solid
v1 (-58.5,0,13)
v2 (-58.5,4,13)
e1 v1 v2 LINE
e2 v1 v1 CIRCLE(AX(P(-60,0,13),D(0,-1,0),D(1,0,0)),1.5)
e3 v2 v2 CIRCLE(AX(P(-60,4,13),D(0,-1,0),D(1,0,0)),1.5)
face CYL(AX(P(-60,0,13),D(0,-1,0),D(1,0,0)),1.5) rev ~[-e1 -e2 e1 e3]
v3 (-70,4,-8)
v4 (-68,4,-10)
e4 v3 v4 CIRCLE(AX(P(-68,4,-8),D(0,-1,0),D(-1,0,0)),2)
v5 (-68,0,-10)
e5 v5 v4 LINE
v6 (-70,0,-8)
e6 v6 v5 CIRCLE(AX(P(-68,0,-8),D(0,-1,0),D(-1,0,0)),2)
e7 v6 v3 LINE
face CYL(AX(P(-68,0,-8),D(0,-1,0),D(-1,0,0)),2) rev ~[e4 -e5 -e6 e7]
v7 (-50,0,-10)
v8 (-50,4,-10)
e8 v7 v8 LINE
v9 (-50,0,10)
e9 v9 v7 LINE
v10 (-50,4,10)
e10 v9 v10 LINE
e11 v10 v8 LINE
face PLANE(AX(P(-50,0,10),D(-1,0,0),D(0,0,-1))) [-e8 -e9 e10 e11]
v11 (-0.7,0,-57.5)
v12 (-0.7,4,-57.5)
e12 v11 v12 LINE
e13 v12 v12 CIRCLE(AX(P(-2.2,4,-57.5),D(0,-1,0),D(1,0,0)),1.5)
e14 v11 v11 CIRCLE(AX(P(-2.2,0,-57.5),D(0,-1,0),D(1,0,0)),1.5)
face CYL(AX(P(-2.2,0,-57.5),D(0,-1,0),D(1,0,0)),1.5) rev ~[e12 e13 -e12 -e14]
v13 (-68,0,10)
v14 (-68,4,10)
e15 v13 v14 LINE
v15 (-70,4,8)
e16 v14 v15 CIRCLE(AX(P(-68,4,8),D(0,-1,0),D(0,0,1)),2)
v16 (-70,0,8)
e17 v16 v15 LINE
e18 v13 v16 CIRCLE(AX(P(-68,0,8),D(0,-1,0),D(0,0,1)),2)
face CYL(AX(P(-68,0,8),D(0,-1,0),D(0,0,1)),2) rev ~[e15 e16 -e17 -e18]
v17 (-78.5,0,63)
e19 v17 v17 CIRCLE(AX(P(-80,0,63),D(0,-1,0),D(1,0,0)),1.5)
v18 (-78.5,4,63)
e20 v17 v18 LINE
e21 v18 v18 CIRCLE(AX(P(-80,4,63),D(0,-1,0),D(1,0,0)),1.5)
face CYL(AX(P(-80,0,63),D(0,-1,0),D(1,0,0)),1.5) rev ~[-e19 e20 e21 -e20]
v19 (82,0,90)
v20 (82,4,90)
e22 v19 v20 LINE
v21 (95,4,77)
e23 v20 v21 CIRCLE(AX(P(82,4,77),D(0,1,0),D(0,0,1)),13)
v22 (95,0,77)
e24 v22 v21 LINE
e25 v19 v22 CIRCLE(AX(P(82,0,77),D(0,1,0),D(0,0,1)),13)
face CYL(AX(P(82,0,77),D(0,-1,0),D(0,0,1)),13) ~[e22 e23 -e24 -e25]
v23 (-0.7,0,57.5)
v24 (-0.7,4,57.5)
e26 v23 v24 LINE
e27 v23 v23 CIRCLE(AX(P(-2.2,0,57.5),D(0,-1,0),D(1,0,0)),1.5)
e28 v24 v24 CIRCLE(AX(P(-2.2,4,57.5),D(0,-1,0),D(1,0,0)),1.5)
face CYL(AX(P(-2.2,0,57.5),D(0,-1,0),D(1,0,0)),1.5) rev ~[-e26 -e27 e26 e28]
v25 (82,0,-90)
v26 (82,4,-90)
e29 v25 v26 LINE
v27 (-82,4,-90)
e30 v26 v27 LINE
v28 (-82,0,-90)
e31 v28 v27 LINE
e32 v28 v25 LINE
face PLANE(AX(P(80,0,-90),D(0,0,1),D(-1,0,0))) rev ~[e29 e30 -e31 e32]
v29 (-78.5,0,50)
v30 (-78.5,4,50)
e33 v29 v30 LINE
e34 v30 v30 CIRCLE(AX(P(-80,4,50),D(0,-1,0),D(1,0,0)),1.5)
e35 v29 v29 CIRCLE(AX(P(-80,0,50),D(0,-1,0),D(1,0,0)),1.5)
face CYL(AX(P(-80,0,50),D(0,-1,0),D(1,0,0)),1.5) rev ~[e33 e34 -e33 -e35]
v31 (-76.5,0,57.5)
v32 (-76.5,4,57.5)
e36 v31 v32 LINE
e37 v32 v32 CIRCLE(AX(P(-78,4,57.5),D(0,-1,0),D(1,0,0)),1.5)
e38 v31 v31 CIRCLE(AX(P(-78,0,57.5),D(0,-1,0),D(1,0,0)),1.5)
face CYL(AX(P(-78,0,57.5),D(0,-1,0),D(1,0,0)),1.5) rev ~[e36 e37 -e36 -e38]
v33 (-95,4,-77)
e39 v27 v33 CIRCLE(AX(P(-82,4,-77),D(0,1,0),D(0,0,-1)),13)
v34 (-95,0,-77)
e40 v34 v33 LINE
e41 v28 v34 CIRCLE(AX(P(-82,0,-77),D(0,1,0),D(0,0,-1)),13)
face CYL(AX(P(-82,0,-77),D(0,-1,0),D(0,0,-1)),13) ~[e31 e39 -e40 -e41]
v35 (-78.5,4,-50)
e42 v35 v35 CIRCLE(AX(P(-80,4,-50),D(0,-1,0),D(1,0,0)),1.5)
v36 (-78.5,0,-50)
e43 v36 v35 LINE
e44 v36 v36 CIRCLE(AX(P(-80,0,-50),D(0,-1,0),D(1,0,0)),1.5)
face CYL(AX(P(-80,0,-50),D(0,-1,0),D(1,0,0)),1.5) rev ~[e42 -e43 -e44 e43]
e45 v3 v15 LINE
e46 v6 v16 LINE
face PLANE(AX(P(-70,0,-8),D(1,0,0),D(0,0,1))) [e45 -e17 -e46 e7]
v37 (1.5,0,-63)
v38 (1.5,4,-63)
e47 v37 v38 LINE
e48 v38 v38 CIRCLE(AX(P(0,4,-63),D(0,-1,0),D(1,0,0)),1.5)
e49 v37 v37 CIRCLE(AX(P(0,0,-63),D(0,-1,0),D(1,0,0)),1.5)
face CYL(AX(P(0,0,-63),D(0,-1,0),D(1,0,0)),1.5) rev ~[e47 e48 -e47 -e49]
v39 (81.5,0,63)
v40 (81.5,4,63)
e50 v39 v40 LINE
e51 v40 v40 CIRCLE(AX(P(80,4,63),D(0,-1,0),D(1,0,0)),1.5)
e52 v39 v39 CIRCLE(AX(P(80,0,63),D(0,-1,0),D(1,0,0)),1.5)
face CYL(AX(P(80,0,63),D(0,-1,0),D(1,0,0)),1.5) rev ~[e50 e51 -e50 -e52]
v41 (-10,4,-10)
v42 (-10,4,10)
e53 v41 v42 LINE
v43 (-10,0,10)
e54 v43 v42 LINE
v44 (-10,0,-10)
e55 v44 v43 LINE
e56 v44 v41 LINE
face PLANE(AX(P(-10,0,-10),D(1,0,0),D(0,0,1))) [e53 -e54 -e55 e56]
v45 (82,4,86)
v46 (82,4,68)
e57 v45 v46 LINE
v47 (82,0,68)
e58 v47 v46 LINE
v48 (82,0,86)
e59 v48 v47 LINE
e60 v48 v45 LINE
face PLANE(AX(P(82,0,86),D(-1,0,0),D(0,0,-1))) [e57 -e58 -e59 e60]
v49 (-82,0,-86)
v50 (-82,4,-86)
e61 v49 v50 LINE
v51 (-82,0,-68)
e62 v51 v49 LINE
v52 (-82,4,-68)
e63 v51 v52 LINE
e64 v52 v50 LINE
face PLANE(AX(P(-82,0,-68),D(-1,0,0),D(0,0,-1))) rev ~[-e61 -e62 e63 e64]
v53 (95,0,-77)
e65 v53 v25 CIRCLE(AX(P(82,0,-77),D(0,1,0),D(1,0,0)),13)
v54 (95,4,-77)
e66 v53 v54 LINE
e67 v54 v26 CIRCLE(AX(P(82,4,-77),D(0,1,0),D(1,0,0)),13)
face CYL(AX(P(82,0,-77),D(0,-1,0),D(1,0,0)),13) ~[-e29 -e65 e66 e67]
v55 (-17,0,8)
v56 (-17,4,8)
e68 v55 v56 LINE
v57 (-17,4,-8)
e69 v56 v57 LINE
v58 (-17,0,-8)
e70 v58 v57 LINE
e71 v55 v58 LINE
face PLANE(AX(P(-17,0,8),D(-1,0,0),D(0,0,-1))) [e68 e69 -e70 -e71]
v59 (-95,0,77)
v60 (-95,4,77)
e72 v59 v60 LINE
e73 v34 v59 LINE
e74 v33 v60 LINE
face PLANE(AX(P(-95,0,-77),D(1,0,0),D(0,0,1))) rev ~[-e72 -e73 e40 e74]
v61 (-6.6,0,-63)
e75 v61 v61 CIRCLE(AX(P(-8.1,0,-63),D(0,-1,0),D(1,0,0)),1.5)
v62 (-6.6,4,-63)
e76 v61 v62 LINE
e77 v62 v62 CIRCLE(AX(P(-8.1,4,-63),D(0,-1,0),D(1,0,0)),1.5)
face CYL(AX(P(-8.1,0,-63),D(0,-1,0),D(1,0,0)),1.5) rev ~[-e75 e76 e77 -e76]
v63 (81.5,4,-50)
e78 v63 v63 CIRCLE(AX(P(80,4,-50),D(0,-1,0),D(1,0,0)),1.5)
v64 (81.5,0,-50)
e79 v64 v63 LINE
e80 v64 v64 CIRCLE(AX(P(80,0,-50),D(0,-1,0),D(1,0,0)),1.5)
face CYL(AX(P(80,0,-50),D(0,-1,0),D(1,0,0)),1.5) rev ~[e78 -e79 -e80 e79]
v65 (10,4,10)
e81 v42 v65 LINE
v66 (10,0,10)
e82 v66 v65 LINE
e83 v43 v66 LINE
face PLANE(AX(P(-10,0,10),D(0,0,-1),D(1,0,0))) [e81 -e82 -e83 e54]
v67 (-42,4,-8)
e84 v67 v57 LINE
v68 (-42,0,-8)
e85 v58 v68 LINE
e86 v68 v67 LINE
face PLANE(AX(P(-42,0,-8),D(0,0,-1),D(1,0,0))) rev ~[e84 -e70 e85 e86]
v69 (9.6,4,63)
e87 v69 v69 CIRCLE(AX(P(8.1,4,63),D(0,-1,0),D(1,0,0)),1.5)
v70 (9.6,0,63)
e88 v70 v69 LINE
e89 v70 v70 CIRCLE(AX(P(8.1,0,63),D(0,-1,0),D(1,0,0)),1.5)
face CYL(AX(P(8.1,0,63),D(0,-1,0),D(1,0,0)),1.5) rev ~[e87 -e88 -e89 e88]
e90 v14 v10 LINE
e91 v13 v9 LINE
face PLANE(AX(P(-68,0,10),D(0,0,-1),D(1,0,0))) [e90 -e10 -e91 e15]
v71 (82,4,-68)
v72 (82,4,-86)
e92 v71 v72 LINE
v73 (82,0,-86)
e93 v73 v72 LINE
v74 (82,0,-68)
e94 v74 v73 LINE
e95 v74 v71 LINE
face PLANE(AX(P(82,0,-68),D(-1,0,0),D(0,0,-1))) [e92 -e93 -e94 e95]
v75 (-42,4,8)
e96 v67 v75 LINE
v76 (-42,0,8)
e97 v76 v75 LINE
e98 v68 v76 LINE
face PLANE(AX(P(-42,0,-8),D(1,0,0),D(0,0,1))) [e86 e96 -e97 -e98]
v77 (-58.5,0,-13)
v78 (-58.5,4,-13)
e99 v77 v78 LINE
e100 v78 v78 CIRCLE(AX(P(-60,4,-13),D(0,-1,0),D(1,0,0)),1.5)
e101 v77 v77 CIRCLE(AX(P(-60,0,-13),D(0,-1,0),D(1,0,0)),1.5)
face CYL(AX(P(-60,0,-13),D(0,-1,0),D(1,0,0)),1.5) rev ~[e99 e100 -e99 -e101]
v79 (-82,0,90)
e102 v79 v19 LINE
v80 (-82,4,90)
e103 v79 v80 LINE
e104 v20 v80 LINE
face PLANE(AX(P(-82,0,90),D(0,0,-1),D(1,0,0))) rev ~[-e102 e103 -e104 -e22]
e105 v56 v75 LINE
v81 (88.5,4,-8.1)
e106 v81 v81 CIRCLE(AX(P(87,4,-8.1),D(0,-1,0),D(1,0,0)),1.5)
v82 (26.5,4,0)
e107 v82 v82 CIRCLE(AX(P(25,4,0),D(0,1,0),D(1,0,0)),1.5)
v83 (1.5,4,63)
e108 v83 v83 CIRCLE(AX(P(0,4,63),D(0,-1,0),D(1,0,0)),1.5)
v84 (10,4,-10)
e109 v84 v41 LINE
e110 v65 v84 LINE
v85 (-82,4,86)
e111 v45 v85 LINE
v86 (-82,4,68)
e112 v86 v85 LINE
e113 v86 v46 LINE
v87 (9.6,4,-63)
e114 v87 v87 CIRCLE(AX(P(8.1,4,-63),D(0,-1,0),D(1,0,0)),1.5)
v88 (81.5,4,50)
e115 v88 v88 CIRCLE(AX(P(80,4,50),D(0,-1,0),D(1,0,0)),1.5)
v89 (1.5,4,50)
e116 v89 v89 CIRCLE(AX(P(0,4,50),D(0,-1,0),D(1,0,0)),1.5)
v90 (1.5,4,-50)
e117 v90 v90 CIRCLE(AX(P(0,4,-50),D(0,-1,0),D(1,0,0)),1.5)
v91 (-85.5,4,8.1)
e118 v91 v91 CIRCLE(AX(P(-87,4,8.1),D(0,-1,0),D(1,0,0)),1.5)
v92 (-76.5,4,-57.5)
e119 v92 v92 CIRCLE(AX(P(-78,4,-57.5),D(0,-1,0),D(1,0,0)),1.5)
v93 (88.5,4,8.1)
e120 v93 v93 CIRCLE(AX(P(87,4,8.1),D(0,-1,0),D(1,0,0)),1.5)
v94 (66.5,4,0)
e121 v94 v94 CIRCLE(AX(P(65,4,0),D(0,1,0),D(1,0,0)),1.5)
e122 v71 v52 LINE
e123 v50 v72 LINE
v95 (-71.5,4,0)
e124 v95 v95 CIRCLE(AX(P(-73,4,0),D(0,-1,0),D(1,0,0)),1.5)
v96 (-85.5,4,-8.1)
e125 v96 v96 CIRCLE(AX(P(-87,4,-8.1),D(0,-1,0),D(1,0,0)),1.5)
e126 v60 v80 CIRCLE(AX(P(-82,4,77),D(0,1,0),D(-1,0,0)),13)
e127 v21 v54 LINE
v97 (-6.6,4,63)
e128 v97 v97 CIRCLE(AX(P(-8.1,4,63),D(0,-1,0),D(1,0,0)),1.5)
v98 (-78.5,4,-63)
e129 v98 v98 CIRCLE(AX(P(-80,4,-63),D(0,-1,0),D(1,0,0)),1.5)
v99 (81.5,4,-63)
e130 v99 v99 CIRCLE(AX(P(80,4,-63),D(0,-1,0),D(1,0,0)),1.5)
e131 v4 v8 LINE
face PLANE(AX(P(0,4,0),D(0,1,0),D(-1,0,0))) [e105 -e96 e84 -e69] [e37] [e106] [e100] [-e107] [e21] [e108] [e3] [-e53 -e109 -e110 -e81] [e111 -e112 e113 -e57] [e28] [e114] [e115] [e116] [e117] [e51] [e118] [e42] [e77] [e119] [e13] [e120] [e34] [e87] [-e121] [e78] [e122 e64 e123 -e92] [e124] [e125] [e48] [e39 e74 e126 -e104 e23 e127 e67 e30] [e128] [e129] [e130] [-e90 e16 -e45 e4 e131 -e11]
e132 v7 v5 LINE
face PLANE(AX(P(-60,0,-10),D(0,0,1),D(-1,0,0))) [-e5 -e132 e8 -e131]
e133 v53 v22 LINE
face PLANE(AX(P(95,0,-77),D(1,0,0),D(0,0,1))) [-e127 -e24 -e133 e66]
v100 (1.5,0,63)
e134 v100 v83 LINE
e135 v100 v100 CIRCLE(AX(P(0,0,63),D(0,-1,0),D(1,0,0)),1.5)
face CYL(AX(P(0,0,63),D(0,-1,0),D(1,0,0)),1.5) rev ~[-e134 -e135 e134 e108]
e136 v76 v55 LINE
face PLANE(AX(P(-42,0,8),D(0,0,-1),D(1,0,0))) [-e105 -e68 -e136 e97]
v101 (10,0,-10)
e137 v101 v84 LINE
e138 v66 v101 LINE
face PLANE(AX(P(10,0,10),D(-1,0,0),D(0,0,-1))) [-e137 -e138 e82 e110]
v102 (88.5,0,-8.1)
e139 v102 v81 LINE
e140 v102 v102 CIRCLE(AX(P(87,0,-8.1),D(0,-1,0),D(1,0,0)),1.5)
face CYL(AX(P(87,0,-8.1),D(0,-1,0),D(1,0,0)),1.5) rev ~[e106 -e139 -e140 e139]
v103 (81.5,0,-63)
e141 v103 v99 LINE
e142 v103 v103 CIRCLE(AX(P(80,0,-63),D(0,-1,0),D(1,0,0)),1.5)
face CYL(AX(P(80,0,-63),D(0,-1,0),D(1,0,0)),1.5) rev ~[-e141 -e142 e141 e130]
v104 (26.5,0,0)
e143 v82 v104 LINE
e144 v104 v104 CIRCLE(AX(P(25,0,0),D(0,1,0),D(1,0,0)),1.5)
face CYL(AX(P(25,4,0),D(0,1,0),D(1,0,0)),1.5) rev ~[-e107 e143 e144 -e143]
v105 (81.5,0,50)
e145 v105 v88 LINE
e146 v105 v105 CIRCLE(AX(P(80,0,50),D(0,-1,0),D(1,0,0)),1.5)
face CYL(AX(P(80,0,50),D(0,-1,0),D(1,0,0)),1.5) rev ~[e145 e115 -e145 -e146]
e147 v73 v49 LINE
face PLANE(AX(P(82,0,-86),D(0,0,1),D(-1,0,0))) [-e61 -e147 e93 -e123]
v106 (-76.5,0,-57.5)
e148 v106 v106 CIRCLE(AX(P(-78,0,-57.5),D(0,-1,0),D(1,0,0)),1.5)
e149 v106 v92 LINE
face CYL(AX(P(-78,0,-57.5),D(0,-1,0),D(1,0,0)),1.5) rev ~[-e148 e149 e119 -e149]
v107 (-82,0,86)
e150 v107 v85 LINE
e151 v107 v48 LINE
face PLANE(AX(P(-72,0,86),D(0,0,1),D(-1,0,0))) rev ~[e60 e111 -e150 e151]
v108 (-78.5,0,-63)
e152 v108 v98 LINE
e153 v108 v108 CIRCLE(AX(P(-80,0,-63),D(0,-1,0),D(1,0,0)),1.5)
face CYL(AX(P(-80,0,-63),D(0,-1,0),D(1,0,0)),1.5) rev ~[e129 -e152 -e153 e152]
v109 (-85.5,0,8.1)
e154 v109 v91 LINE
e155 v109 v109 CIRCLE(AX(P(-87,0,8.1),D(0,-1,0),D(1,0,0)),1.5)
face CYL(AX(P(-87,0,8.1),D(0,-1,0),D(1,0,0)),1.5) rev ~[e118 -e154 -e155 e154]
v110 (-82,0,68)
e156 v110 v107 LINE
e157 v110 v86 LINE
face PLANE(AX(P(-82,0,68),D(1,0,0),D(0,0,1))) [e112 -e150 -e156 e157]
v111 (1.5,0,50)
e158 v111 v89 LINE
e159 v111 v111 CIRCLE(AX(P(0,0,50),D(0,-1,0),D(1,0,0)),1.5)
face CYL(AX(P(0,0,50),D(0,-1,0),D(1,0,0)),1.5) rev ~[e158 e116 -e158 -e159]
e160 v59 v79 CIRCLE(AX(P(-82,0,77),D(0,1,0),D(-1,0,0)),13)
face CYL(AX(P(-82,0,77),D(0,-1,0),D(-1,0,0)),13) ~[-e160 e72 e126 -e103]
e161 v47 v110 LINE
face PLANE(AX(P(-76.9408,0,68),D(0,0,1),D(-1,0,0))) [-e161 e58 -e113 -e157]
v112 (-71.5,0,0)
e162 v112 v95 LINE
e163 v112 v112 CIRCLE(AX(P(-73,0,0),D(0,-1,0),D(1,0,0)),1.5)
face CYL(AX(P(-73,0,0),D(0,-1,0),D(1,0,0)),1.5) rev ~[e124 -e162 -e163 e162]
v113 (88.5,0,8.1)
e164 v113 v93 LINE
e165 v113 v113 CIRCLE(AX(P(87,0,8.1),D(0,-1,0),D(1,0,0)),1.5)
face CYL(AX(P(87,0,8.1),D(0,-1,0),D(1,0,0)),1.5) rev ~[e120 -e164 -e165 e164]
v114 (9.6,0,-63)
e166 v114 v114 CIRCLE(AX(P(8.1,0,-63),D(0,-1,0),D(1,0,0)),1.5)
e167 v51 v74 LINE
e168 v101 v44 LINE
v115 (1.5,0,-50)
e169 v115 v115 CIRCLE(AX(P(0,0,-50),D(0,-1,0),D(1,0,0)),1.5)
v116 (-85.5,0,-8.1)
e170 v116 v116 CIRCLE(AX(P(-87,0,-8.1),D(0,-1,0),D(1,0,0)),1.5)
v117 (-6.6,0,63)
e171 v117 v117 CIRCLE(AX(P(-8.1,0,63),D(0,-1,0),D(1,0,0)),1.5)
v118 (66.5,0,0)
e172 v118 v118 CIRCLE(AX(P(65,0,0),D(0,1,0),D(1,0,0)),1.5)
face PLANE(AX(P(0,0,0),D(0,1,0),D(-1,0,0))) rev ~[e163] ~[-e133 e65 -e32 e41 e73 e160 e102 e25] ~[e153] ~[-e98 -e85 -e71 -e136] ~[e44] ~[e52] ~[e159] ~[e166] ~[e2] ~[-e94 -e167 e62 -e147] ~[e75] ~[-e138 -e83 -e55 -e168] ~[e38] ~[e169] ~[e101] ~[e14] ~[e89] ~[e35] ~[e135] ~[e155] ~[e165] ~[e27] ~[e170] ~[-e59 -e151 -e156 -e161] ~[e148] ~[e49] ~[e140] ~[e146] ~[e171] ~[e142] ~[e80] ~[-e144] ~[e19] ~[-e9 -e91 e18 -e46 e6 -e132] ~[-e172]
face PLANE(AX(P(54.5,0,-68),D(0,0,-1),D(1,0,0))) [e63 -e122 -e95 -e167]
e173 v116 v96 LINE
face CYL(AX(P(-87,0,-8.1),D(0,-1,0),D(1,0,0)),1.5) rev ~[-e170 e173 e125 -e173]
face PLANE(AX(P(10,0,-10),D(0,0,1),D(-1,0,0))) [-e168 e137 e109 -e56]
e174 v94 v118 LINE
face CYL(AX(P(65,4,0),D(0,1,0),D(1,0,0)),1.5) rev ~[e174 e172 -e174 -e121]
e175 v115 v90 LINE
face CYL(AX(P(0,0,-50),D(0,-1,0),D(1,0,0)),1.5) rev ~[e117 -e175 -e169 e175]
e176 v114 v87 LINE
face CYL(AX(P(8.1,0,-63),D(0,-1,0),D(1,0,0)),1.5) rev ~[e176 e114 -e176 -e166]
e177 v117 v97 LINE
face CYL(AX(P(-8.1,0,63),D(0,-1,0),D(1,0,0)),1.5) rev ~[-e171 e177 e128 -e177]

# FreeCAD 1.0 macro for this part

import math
import FreeCAD as App
import Part
import Sketcher
Q = App.Units.Quantity


def add_polygon(sketch, points):
    """Adds a closed chain of lines whose ends are joined by coincident constraints."""
    first, n = sketch.GeometryCount, len(points)
    for a, b in zip(points, points[1:] + points[:1]):
        sketch.addGeometry(Part.LineSegment(App.Vector(*a, 0), App.Vector(*b, 0)), False)
    for i in range(n):
        sketch.addConstraint(Sketcher.Constraint("Coincident", first + i, 2, first + (i + 1) % n, 1))

doc = App.newDocument("Part")
body = doc.addObject("PartDesign::Body", "Body")

sketch1 = body.newObject("Sketcher::SketchObject", "Sketch")
sketch1.AttachmentSupport = (doc.getObject("XZ_Plane"), [""])
sketch1.MapMode = "FlatFace"
sketch1.addGeometry(Part.ArcOfCircle(Part.Circle(App.Vector(-82, 77, 0), App.Vector(0, 0, 1), 13), math.radians(90), math.radians(180)), False)
sketch1.addGeometry(Part.LineSegment(App.Vector(-82, 90, 0), App.Vector(82, 90, 0)), False)
sketch1.addGeometry(Part.ArcOfCircle(Part.Circle(App.Vector(82, 77, 0), App.Vector(0, 0, 1), 13), math.radians(0), math.radians(90)), False)
sketch1.addGeometry(Part.LineSegment(App.Vector(95, 77, 0), App.Vector(95, -77, 0)), False)
sketch1.addGeometry(Part.ArcOfCircle(Part.Circle(App.Vector(82, -77, 0), App.Vector(0, 0, 1), 13), math.radians(-90), math.radians(0)), False)
sketch1.addGeometry(Part.LineSegment(App.Vector(82, -90, 0), App.Vector(-82, -90, 0)), False)
sketch1.addGeometry(Part.ArcOfCircle(Part.Circle(App.Vector(-82, -77, 0), App.Vector(0, 0, 1), 13), math.radians(180), math.radians(270)), False)
sketch1.addGeometry(Part.LineSegment(App.Vector(-95, -77, 0), App.Vector(-95, 77, 0)), False)
add_polygon(sketch1, [(-82, 68), (82, 68), (82, 86), (-82, 86)])
add_polygon(sketch1, [(-82, -68), (-82, -86), (82, -86), (82, -68)])
sketch1.addConstraint(Sketcher.Constraint("Tangent", 0, 1, 1, 1))
sketch1.addConstraint(Sketcher.Constraint("Tangent", 1, 2, 2, 2))
sketch1.addConstraint(Sketcher.Constraint("Tangent", 2, 1, 3, 1))
sketch1.addConstraint(Sketcher.Constraint("Tangent", 3, 2, 4, 2))
sketch1.addConstraint(Sketcher.Constraint("Tangent", 4, 1, 5, 1))
sketch1.addConstraint(Sketcher.Constraint("Tangent", 5, 2, 6, 2))
sketch1.addConstraint(Sketcher.Constraint("Tangent", 6, 1, 7, 1))
sketch1.addConstraint(Sketcher.Constraint("Tangent", 7, 2, 0, 2))
sketch1.addConstraint(Sketcher.Constraint("Horizontal", 1))
sketch1.addConstraint(Sketcher.Constraint("Vertical", 3))
sketch1.addConstraint(Sketcher.Constraint("Horizontal", 5))
sketch1.addConstraint(Sketcher.Constraint("Vertical", 7))
sketch1.addConstraint(Sketcher.Constraint("Horizontal", 8))
sketch1.addConstraint(Sketcher.Constraint("Vertical", 9))
sketch1.addConstraint(Sketcher.Constraint("Horizontal", 10))
sketch1.addConstraint(Sketcher.Constraint("Vertical", 11))
sketch1.addConstraint(Sketcher.Constraint("Vertical", 12))
sketch1.addConstraint(Sketcher.Constraint("Horizontal", 13))
sketch1.addConstraint(Sketcher.Constraint("Vertical", 14))
sketch1.addConstraint(Sketcher.Constraint("Horizontal", 15))
sketch1.addConstraint(Sketcher.Constraint("Equal", 0, 2))
sketch1.addConstraint(Sketcher.Constraint("Equal", 2, 4))
sketch1.addConstraint(Sketcher.Constraint("Equal", 4, 6))
sketch1.addConstraint(Sketcher.Constraint("Symmetric", 0, 3, 4, 3, -1, 1))
sketch1.addConstraint(Sketcher.Constraint("Symmetric", 9, 2, 12, 2, -1, 1))
sketch1.addConstraint(Sketcher.Constraint("Symmetric", 11, 2, 14, 2, -1, 1))
sketch1.addConstraint(Sketcher.Constraint("Vertical", 4, 1, 8, 2))
sketch1.addConstraint(Sketcher.Constraint("Vertical", 5, 2, 10, 2))
sketch1.addConstraint(Sketcher.Constraint("Radius", 0, Q("13 mm")))
sketch1.addConstraint(Sketcher.Constraint("DistanceX", 1, 1, 1, 2, Q("164 mm")))
sketch1.addConstraint(Sketcher.Constraint("DistanceY", 3, 2, 3, 1, Q("154 mm")))
sketch1.addConstraint(Sketcher.Constraint("DistanceY", 9, 1, 9, 2, Q("18 mm")))
sketch1.addConstraint(Sketcher.Constraint("DistanceY", -1, 1, 8, 2, Q("68 mm")))
pad1 = body.newObject("PartDesign::Pad", "Pad")
pad1.Profile = sketch1
pad1.Length = 4
pad1.Reversed = True

sketch2 = body.newObject("Sketcher::SketchObject", "Sketch001")
sketch2.AttachmentSupport = (doc.getObject("XZ_Plane"), [""])
sketch2.MapMode = "FlatFace"
sketch2.addGeometry(Part.Circle(App.Vector(-80, -63, 0), App.Vector(0, 0, 1), 1.5), False)
sketch2.addGeometry(Part.Circle(App.Vector(-80, -50, 0), App.Vector(0, 0, 1), 1.5), False)
sketch2.addGeometry(Part.Circle(App.Vector(80, -63, 0), App.Vector(0, 0, 1), 1.5), False)
sketch2.addGeometry(Part.Circle(App.Vector(80, -50, 0), App.Vector(0, 0, 1), 1.5), False)
sketch2.addGeometry(Part.Circle(App.Vector(0, -50, 0), App.Vector(0, 0, 1), 1.5), False)
sketch2.addGeometry(Part.Circle(App.Vector(0, -63, 0), App.Vector(0, 0, 1), 1.5), False)
sketch2.addGeometry(Part.Circle(App.Vector(-80, 63, 0), App.Vector(0, 0, 1), 1.5), False)
sketch2.addGeometry(Part.Circle(App.Vector(-80, 50, 0), App.Vector(0, 0, 1), 1.5), False)
sketch2.addGeometry(Part.Circle(App.Vector(80, 63, 0), App.Vector(0, 0, 1), 1.5), False)
sketch2.addGeometry(Part.Circle(App.Vector(80, 50, 0), App.Vector(0, 0, 1), 1.5), False)
sketch2.addGeometry(Part.Circle(App.Vector(0, 50, 0), App.Vector(0, 0, 1), 1.5), False)
sketch2.addGeometry(Part.Circle(App.Vector(0, 63, 0), App.Vector(0, 0, 1), 1.5), False)
sketch2.addConstraint(Sketcher.Constraint("Equal", 0, 1))
sketch2.addConstraint(Sketcher.Constraint("Equal", 1, 2))
sketch2.addConstraint(Sketcher.Constraint("Equal", 2, 3))
sketch2.addConstraint(Sketcher.Constraint("Equal", 3, 4))
sketch2.addConstraint(Sketcher.Constraint("Equal", 4, 5))
sketch2.addConstraint(Sketcher.Constraint("Equal", 5, 6))
sketch2.addConstraint(Sketcher.Constraint("Equal", 6, 7))
sketch2.addConstraint(Sketcher.Constraint("Equal", 7, 8))
sketch2.addConstraint(Sketcher.Constraint("Equal", 8, 9))
sketch2.addConstraint(Sketcher.Constraint("Equal", 9, 10))
sketch2.addConstraint(Sketcher.Constraint("Equal", 10, 11))
sketch2.addConstraint(Sketcher.Constraint("Symmetric", 2, 3, 6, 3, -1, 1))
sketch2.addConstraint(Sketcher.Constraint("Symmetric", 3, 3, 7, 3, -1, 1))
sketch2.addConstraint(Sketcher.Constraint("Symmetric", 0, 3, 8, 3, -1, 1))
sketch2.addConstraint(Sketcher.Constraint("Symmetric", 1, 3, 9, 3, -1, 1))
sketch2.addConstraint(Sketcher.Constraint("Symmetric", 4, 3, 10, 3, -1, 1))
sketch2.addConstraint(Sketcher.Constraint("Symmetric", 5, 3, 11, 3, -1, 1))
sketch2.addConstraint(Sketcher.Constraint("Symmetric", 0, 3, 2, 3, -2))
sketch2.addConstraint(Sketcher.Constraint("Symmetric", 1, 3, 3, 3, -2))
sketch2.addConstraint(Sketcher.Constraint("PointOnObject", 4, 3, -2))
sketch2.addConstraint(Sketcher.Constraint("PointOnObject", 5, 3, -2))
sketch2.addConstraint(Sketcher.Constraint("Horizontal", 3, 3, 4, 3))
sketch2.addConstraint(Sketcher.Constraint("Horizontal", 2, 3, 5, 3))
sketch2.addConstraint(Sketcher.Constraint("Vertical", 0, 3, 1, 3))
sketch2.addConstraint(Sketcher.Constraint("Diameter", 0, Q("3 mm")))
sketch2.addConstraint(Sketcher.Constraint("DistanceX", 0, 3, -1, 1, Q("80 mm")))
sketch2.addConstraint(Sketcher.Constraint("DistanceY", 0, 3, -1, 1, Q("63 mm")))
sketch2.addConstraint(Sketcher.Constraint("DistanceY", 1, 3, -1, 1, Q("50 mm")))
pocket1 = body.newObject("PartDesign::Pocket", "Pocket")
pocket1.Profile = sketch2
pocket1.Length = 4

sketch3 = body.newObject("Sketcher::SketchObject", "Sketch002")
sketch3.AttachmentSupport = (doc.getObject("XZ_Plane"), [""])
sketch3.MapMode = "FlatFace"
sketch3.addGeometry(Part.Circle(App.Vector(-73, 0, 0), App.Vector(0, 0, 1), 1.5), False)
sketch3.addGeometry(Part.Circle(App.Vector(-60, -13, 0), App.Vector(0, 0, 1), 1.5), False)
sketch3.addGeometry(Part.Circle(App.Vector(-60, 13, 0), App.Vector(0, 0, 1), 1.5), False)
sketch3.addConstraint(Sketcher.Constraint("Equal", 0, 1))
sketch3.addConstraint(Sketcher.Constraint("Equal", 1, 2))
sketch3.addConstraint(Sketcher.Constraint("Symmetric", 1, 3, 2, 3, -1))
sketch3.addConstraint(Sketcher.Constraint("PointOnObject", 0, 3, -1))
sketch3.addConstraint(Sketcher.Constraint("Diameter", 0, Q("3 mm")))
sketch3.addConstraint(Sketcher.Constraint("DistanceX", 0, 3, -1, 1, Q("73 mm")))
sketch3.addConstraint(Sketcher.Constraint("DistanceX", 1, 3, -1, 1, Q("60 mm")))
sketch3.addConstraint(Sketcher.Constraint("DistanceY", 1, 3, -1, 1, Q("13 mm")))
pocket2 = body.newObject("PartDesign::Pocket", "Pocket001")
pocket2.Profile = sketch3
pocket2.Length = 4

sketch4 = body.newObject("Sketcher::SketchObject", "Sketch003")
sketch4.AttachmentSupport = (doc.getObject("XZ_Plane"), [""])
sketch4.MapMode = "FlatFace"
sketch4.addGeometry(Part.LineSegment(App.Vector(-68, -10, 0), App.Vector(-50, -10, 0)), False)
sketch4.addGeometry(Part.LineSegment(App.Vector(-50, -10, 0), App.Vector(-50, 10, 0)), False)
sketch4.addGeometry(Part.LineSegment(App.Vector(-50, 10, 0), App.Vector(-68, 10, 0)), False)
sketch4.addGeometry(Part.ArcOfCircle(Part.Circle(App.Vector(-68, 8, 0), App.Vector(0, 0, 1), 2), math.radians(90), math.radians(180)), False)
sketch4.addGeometry(Part.LineSegment(App.Vector(-70, 8, 0), App.Vector(-70, -8, 0)), False)
sketch4.addGeometry(Part.ArcOfCircle(Part.Circle(App.Vector(-68, -8, 0), App.Vector(0, 0, 1), 2), math.radians(180), math.radians(270)), False)
sketch4.addConstraint(Sketcher.Constraint("Coincident", 0, 2, 1, 1))
sketch4.addConstraint(Sketcher.Constraint("Coincident", 1, 2, 2, 1))
sketch4.addConstraint(Sketcher.Constraint("Tangent", 2, 2, 3, 1))
sketch4.addConstraint(Sketcher.Constraint("Tangent", 3, 2, 4, 1))
sketch4.addConstraint(Sketcher.Constraint("Tangent", 4, 2, 5, 1))
sketch4.addConstraint(Sketcher.Constraint("Tangent", 5, 2, 0, 1))
sketch4.addConstraint(Sketcher.Constraint("Horizontal", 0))
sketch4.addConstraint(Sketcher.Constraint("Vertical", 1))
sketch4.addConstraint(Sketcher.Constraint("Horizontal", 2))
sketch4.addConstraint(Sketcher.Constraint("Vertical", 4))
sketch4.addConstraint(Sketcher.Constraint("Equal", 3, 5))
sketch4.addConstraint(Sketcher.Constraint("Radius", 3, Q("2 mm")))
sketch4.addConstraint(Sketcher.Constraint("DistanceX", 0, 1, 0, 2, Q("18 mm")))
sketch4.addConstraint(Sketcher.Constraint("DistanceY", 1, 1, 1, 2, Q("20 mm")))
sketch4.addConstraint(Sketcher.Constraint("DistanceX", 3, 3, -1, 1, Q("68 mm")))
sketch4.addConstraint(Sketcher.Constraint("DistanceY", -1, 1, 3, 3, Q("8 mm")))
pocket3 = body.newObject("PartDesign::Pocket", "Pocket002")
pocket3.Profile = sketch4
pocket3.Length = 4

sketch5 = body.newObject("Sketcher::SketchObject", "Sketch004")
sketch5.AttachmentSupport = (doc.getObject("XZ_Plane"), [""])
sketch5.MapMode = "FlatFace"
sketch5.addGeometry(Part.Circle(App.Vector(-78, 57.5, 0), App.Vector(0, 0, 1), 1.5), False)
sketch5.addGeometry(Part.Circle(App.Vector(-2.2, 57.5, 0), App.Vector(0, 0, 1), 1.5), False)
sketch5.addGeometry(Part.Circle(App.Vector(-78, -57.5, 0), App.Vector(0, 0, 1), 1.5), False)
sketch5.addGeometry(Part.Circle(App.Vector(-2.2, -57.5, 0), App.Vector(0, 0, 1), 1.5), False)
sketch5.addConstraint(Sketcher.Constraint("Equal", 0, 1))
sketch5.addConstraint(Sketcher.Constraint("Equal", 1, 2))
sketch5.addConstraint(Sketcher.Constraint("Equal", 2, 3))
sketch5.addConstraint(Sketcher.Constraint("Symmetric", 0, 3, 2, 3, -1))
sketch5.addConstraint(Sketcher.Constraint("Symmetric", 1, 3, 3, 3, -1))
sketch5.addConstraint(Sketcher.Constraint("Horizontal", 0, 3, 1, 3))
sketch5.addConstraint(Sketcher.Constraint("Diameter", 0, Q("3 mm")))
sketch5.addConstraint(Sketcher.Constraint("DistanceX", 0, 3, -1, 1, Q("78 mm")))
sketch5.addConstraint(Sketcher.Constraint("DistanceY", 2, 3, 0, 3, Q("115 mm")))
sketch5.addConstraint(Sketcher.Constraint("DistanceX", 1, 3, -1, 1, Q("2.2 mm")))
pocket4 = body.newObject("PartDesign::Pocket", "Pocket003")
pocket4.Profile = sketch5
pocket4.Length = 4

sketch6 = body.newObject("Sketcher::SketchObject", "Sketch005")
sketch6.AttachmentSupport = (doc.getObject("XZ_Plane"), [""])
sketch6.MapMode = "FlatFace"
sketch6.addGeometry(Part.Circle(App.Vector(-87, -8.1, 0), App.Vector(0, 0, 1), 1.5), False)
sketch6.addConstraint(Sketcher.Constraint("Diameter", 0, Q("3 mm")))
sketch6.addConstraint(Sketcher.Constraint("DistanceX", 0, 3, -1, 1, Q("87 mm")))
sketch6.addConstraint(Sketcher.Constraint("DistanceY", 0, 3, -1, 1, Q("8.1 mm")))
pocket5 = body.newObject("PartDesign::Pocket", "Pocket004")
pocket5.Profile = sketch6
pocket5.Length = 4

sketch7 = body.newObject("Sketcher::SketchObject", "Sketch006")
sketch7.AttachmentSupport = (doc.getObject("XZ_Plane"), [""])
sketch7.MapMode = "FlatFace"
sketch7.addGeometry(Part.Circle(App.Vector(-8.1, 63, 0), App.Vector(0, 0, 1), 1.5), False)
sketch7.addConstraint(Sketcher.Constraint("Diameter", 0, Q("3 mm")))
sketch7.addConstraint(Sketcher.Constraint("DistanceY", -1, 1, 0, 3, Q("63 mm")))
sketch7.addConstraint(Sketcher.Constraint("DistanceX", 0, 3, -1, 1, Q("8.1 mm")))
pocket6 = body.newObject("PartDesign::Pocket", "Pocket005")
pocket6.Profile = sketch7
pocket6.Length = 4

sketch8 = body.newObject("Sketcher::SketchObject", "Sketch007")
sketch8.AttachmentSupport = (doc.getObject("XZ_Plane"), [""])
sketch8.MapMode = "FlatFace"
add_polygon(sketch8, [(-42, -8), (-42, 8), (-17, 8), (-17, -8)])
sketch8.addConstraint(Sketcher.Constraint("Vertical", 0))
sketch8.addConstraint(Sketcher.Constraint("Horizontal", 1))
sketch8.addConstraint(Sketcher.Constraint("Vertical", 2))
sketch8.addConstraint(Sketcher.Constraint("Horizontal", 3))
sketch8.addConstraint(Sketcher.Constraint("DistanceX", 1, 1, 1, 2, Q("25 mm")))
sketch8.addConstraint(Sketcher.Constraint("DistanceY", 0, 1, 0, 2, Q("16 mm")))
sketch8.addConstraint(Sketcher.Constraint("DistanceX", 0, 2, -1, 1, Q("42 mm")))
sketch8.addConstraint(Sketcher.Constraint("DistanceY", -1, 1, 0, 2, Q("8 mm")))
pocket7 = body.newObject("PartDesign::Pocket", "Pocket006")
pocket7.Profile = sketch8
pocket7.Length = 4

sketch9 = body.newObject("Sketcher::SketchObject", "Sketch008")
sketch9.AttachmentSupport = (doc.getObject("XZ_Plane"), [""])
sketch9.MapMode = "FlatFace"
add_polygon(sketch9, [(10, 10), (10, -10), (-10, -10), (-10, 10)])
sketch9.addConstraint(Sketcher.Constraint("Vertical", 0))
sketch9.addConstraint(Sketcher.Constraint("Horizontal", 1))
sketch9.addConstraint(Sketcher.Constraint("Vertical", 2))
sketch9.addConstraint(Sketcher.Constraint("Horizontal", 3))
sketch9.addConstraint(Sketcher.Constraint("Symmetric", 0, 2, 2, 2, -1, 1))
sketch9.addConstraint(Sketcher.Constraint("Equal", 3, 0))
sketch9.addConstraint(Sketcher.Constraint("DistanceX", 1, 2, 1, 1, Q("20 mm")))
pocket8 = body.newObject("PartDesign::Pocket", "Pocket007")
pocket8.Profile = sketch9
pocket8.Length = 4

sketch10 = body.newObject("Sketcher::SketchObject", "Sketch009")
sketch10.AttachmentSupport = (doc.getObject("XZ_Plane"), [""])
sketch10.MapMode = "FlatFace"
sketch10.AttachmentOffset = App.Placement(App.Vector(0, 0, -4), App.Rotation())
sketch10.addGeometry(Part.Circle(App.Vector(25, 0, 0), App.Vector(0, 0, 1), 1.5), False)
sketch10.addGeometry(Part.Circle(App.Vector(65, 0, 0), App.Vector(0, 0, 1), 1.5), False)
sketch10.addConstraint(Sketcher.Constraint("Equal", 0, 1))
sketch10.addConstraint(Sketcher.Constraint("PointOnObject", 0, 3, -1))
sketch10.addConstraint(Sketcher.Constraint("PointOnObject", 1, 3, -1))
sketch10.addConstraint(Sketcher.Constraint("Diameter", 0, Q("3 mm")))
sketch10.addConstraint(Sketcher.Constraint("DistanceX", -1, 1, 0, 3, Q("25 mm")))
sketch10.addConstraint(Sketcher.Constraint("DistanceX", -1, 1, 1, 3, Q("65 mm")))
pocket9 = body.newObject("PartDesign::Pocket", "Pocket008")
pocket9.Profile = sketch10
pocket9.Length = 4
pocket9.Reversed = True

sketch11 = body.newObject("Sketcher::SketchObject", "Sketch010")
sketch11.AttachmentSupport = (doc.getObject("XZ_Plane"), [""])
sketch11.MapMode = "FlatFace"
sketch11.addGeometry(Part.Circle(App.Vector(-87, 8.1, 0), App.Vector(0, 0, 1), 1.5), False)
sketch11.addConstraint(Sketcher.Constraint("Diameter", 0, Q("3 mm")))
sketch11.addConstraint(Sketcher.Constraint("DistanceX", 0, 3, -1, 1, Q("87 mm")))
sketch11.addConstraint(Sketcher.Constraint("DistanceY", -1, 1, 0, 3, Q("8.1 mm")))
pocket10 = body.newObject("PartDesign::Pocket", "Pocket009")
pocket10.Profile = sketch11
pocket10.Length = 10

sketch12 = body.newObject("Sketcher::SketchObject", "Sketch011")
sketch12.AttachmentSupport = (doc.getObject("XZ_Plane"), [""])
sketch12.MapMode = "FlatFace"
sketch12.addGeometry(Part.Circle(App.Vector(87, -8.1, 0), App.Vector(0, 0, 1), 1.5), False)
sketch12.addGeometry(Part.Circle(App.Vector(87, 8.1, 0), App.Vector(0, 0, 1), 1.5), False)
sketch12.addGeometry(Part.Circle(App.Vector(8.1, 63, 0), App.Vector(0, 0, 1), 1.5), False)
sketch12.addGeometry(Part.Circle(App.Vector(-8.1, -63, 0), App.Vector(0, 0, 1), 1.5), False)
sketch12.addGeometry(Part.Circle(App.Vector(8.1, -63, 0), App.Vector(0, 0, 1), 1.5), False)
sketch12.addConstraint(Sketcher.Constraint("Equal", 0, 1))
sketch12.addConstraint(Sketcher.Constraint("Equal", 1, 2))
sketch12.addConstraint(Sketcher.Constraint("Equal", 2, 3))
sketch12.addConstraint(Sketcher.Constraint("Equal", 3, 4))
sketch12.addConstraint(Sketcher.Constraint("Symmetric", 2, 3, 3, 3, -1, 1))
sketch12.addConstraint(Sketcher.Constraint("Symmetric", 3, 3, 4, 3, -2))
sketch12.addConstraint(Sketcher.Constraint("Symmetric", 0, 3, 1, 3, -1))
sketch12.addConstraint(Sketcher.Constraint("Diameter", 0, Q("3 mm")))
sketch12.addConstraint(Sketcher.Constraint("DistanceX", -1, 1, 0, 3, Q("87 mm")))
sketch12.addConstraint(Sketcher.Constraint("DistanceY", -1, 1, 2, 3, Q("63 mm")))
sketch12.addConstraint(Sketcher.Constraint("DistanceY", 0, 3, -1, 1, Q("8.1 mm")))
sketch12.addConstraint(Sketcher.Constraint("DistanceX", -1, 1, 2, 3, Q("8.1 mm")))
pocket11 = body.newObject("PartDesign::Pocket", "Pocket010")
pocket11.Profile = sketch12
pocket11.Length = 10

doc.recompute()
